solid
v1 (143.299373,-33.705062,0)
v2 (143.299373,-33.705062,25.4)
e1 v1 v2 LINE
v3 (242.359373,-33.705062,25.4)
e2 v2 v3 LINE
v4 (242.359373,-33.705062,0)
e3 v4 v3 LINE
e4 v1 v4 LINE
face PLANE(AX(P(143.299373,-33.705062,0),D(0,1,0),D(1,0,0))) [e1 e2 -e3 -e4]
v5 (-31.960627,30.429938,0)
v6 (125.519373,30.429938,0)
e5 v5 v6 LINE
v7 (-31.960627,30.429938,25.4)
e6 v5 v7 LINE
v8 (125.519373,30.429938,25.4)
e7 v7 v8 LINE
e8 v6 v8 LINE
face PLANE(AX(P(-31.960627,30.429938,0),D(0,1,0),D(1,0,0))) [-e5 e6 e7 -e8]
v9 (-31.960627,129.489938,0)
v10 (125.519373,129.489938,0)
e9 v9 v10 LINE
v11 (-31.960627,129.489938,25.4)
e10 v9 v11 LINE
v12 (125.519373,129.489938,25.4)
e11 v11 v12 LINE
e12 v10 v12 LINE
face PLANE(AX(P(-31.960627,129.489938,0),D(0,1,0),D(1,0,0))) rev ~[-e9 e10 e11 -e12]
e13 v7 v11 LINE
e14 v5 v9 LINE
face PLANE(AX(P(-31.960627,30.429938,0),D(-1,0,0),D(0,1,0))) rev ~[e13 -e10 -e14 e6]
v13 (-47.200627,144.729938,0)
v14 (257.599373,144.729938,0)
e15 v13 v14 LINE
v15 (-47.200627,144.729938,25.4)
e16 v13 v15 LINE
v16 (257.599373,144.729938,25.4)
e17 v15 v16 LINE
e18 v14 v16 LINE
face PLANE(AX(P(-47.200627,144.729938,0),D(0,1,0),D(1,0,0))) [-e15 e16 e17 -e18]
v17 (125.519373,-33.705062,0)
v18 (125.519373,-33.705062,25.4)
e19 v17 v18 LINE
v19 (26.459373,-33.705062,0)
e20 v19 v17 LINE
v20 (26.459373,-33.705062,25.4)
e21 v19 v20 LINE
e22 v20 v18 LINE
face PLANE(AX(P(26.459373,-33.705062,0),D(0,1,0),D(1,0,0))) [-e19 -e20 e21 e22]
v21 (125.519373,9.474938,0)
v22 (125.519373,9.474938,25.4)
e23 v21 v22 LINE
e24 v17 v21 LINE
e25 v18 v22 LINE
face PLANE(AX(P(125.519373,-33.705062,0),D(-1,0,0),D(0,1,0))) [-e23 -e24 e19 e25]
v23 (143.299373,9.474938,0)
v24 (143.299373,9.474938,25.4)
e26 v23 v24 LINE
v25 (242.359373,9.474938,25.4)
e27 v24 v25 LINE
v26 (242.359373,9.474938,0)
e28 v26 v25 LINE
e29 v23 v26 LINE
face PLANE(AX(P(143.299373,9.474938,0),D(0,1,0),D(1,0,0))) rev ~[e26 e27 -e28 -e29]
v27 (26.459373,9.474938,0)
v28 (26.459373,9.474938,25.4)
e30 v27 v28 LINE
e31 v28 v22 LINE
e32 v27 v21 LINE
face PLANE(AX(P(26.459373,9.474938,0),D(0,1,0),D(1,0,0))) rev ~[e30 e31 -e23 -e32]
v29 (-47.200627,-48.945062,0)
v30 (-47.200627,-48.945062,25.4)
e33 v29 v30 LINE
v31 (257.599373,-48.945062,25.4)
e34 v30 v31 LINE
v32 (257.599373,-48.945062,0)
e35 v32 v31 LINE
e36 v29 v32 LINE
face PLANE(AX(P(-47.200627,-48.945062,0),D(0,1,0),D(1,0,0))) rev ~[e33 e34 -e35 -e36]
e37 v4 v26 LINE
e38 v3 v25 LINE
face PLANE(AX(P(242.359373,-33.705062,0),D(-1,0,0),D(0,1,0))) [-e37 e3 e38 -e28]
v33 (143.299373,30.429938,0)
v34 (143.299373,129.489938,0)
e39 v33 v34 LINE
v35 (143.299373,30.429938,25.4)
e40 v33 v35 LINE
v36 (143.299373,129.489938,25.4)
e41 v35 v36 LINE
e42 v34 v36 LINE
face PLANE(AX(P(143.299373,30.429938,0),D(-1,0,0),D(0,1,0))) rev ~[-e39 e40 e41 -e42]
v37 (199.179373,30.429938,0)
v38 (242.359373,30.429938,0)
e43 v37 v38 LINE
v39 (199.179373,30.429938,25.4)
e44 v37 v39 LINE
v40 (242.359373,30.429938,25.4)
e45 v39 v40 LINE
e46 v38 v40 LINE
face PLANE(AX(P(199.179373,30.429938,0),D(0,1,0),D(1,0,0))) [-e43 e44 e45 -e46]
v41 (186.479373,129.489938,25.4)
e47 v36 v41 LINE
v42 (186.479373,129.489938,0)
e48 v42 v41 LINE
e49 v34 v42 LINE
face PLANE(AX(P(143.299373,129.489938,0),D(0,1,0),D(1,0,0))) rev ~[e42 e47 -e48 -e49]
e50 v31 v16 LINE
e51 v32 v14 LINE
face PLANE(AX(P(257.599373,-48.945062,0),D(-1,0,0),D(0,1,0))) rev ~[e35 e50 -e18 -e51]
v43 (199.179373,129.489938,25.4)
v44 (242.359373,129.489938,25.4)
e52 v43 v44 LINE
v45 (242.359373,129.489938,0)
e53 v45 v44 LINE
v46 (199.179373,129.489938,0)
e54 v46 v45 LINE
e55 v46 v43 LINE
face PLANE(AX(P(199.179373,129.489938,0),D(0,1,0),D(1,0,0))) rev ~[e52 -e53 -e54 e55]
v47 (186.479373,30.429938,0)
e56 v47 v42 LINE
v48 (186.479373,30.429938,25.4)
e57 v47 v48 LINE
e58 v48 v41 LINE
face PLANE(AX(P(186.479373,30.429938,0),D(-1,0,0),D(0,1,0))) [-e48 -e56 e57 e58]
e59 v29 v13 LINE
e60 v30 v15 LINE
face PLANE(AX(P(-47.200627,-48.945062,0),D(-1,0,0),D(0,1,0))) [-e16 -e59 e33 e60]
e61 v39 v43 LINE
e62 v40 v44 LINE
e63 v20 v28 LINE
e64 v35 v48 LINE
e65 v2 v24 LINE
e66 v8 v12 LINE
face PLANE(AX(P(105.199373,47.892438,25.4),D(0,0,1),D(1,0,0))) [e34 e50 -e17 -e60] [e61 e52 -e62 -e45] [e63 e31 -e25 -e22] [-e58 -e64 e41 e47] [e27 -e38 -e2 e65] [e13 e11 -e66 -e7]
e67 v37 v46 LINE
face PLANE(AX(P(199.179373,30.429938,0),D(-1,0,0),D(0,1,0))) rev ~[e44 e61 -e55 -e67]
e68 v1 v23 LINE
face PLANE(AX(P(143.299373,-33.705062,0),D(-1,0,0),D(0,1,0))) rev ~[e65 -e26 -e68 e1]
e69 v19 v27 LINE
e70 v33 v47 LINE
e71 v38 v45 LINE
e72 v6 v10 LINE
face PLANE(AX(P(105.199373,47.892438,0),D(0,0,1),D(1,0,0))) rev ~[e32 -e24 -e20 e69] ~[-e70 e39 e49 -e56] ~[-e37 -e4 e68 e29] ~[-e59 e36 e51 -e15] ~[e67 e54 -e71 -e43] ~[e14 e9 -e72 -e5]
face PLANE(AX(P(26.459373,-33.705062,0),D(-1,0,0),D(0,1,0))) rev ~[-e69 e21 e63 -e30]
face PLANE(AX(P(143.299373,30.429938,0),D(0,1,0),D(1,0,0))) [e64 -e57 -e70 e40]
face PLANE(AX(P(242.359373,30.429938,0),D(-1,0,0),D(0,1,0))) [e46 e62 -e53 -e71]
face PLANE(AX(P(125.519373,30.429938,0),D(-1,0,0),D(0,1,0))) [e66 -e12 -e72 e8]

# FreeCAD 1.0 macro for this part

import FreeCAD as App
import Part
import Sketcher
from FreeCAD import Vector
Q = App.Units.Quantity


def add_polygon(sketch, points):
    """Adds a closed chain of lines whose ends are joined by coincident constraints."""
    first, n = sketch.GeometryCount, len(points)
    for a, b in zip(points, points[1:] + points[:1]):
        sketch.addGeometry(Part.LineSegment(App.Vector(*a, 0), App.Vector(*b, 0)), False)
    for i in range(n):
        sketch.addConstraint(Sketcher.Constraint("Coincident", first + i, 2, first + (i + 1) % n, 1))

doc = App.newDocument("Part")
params = doc.addObject("Spreadsheet::Sheet", "Params")
for row, (alias, value) in enumerate([
    ("sketch1_width", "12 in"),
    ("sketch1_width2", "3.9 in"),
    ("sketch1_width3", "6.2 in"),
    ("sketch1_width4", "1.7 in"),
    ("sketch1_height", "7.625 in"),
    ("pad1_length", "1 in"),
], start=1):
    params.set(f"A{row}", alias)
    params.set(f"B{row}", "=" + value)
    params.setAlias(f"B{row}", alias)

body = doc.addObject("PartDesign::Body", "Body")

# Sketch on XY plane
sketch1 = body.newObject("Sketcher::SketchObject", "Sketch")
sketch1.AttachmentSupport = (doc.getObject("XY_Plane"), [""])
sketch1.MapMode = "FlatFace"
add_polygon(sketch1, [(-47, 145), (-47, -49), (258, -49), (258, 145)])  # lines 0-3
add_polygon(sketch1, [(126, -34), (26, -34), (26, 9), (126, 9)])  # lines 4-7
add_polygon(sketch1, [(242, -34), (143, -34), (143, 9), (242, 9)])  # lines 8-11
add_polygon(sketch1, [(126, 30), (-32, 30), (-32, 129), (126, 129)])  # lines 12-15
add_polygon(sketch1, [(186, 30), (143, 30), (143, 129), (186, 129)])  # lines 16-19
add_polygon(sketch1, [(242, 30), (199, 30), (199, 129), (242, 129)])  # lines 20-23
sketch1.addConstraint(Sketcher.Constraint("Vertical", 0))
sketch1.addConstraint(Sketcher.Constraint("Horizontal", 1))
sketch1.addConstraint(Sketcher.Constraint("Vertical", 2))
sketch1.addConstraint(Sketcher.Constraint("Horizontal", 3))
sketch1.addConstraint(Sketcher.Constraint("Horizontal", 4))
sketch1.addConstraint(Sketcher.Constraint("Vertical", 5))
sketch1.addConstraint(Sketcher.Constraint("Horizontal", 6))
sketch1.addConstraint(Sketcher.Constraint("Vertical", 7))
sketch1.addConstraint(Sketcher.Constraint("Horizontal", 8))
sketch1.addConstraint(Sketcher.Constraint("Vertical", 9))
sketch1.addConstraint(Sketcher.Constraint("Horizontal", 10))
sketch1.addConstraint(Sketcher.Constraint("Vertical", 11))
sketch1.addConstraint(Sketcher.Constraint("Horizontal", 12))
sketch1.addConstraint(Sketcher.Constraint("Vertical", 13))
sketch1.addConstraint(Sketcher.Constraint("Horizontal", 14))
sketch1.addConstraint(Sketcher.Constraint("Vertical", 15))
sketch1.addConstraint(Sketcher.Constraint("Horizontal", 16))
sketch1.addConstraint(Sketcher.Constraint("Vertical", 17))
sketch1.addConstraint(Sketcher.Constraint("Horizontal", 18))
sketch1.addConstraint(Sketcher.Constraint("Vertical", 19))
sketch1.addConstraint(Sketcher.Constraint("Horizontal", 20))
sketch1.addConstraint(Sketcher.Constraint("Vertical", 21))
sketch1.addConstraint(Sketcher.Constraint("Horizontal", 22))
sketch1.addConstraint(Sketcher.Constraint("Vertical", 23))
sketch1.addConstraint(Sketcher.Constraint("Horizontal", 7, 2, 8, 2))
sketch1.addConstraint(Sketcher.Constraint("Horizontal", 6, 2, 9, 2))
sketch1.addConstraint(Sketcher.Constraint("Horizontal", 15, 2, 16, 2))
sketch1.addConstraint(Sketcher.Constraint("Horizontal", 14, 2, 17, 2))
sketch1.addConstraint(Sketcher.Constraint("Horizontal", 19, 2, 20, 2))
sketch1.addConstraint(Sketcher.Constraint("Horizontal", 18, 2, 21, 2))
sketch1.addConstraint(Sketcher.Constraint("Vertical", 7, 2, 14, 2))
sketch1.addConstraint(Sketcher.Constraint("Vertical", 9, 2, 16, 2))
sketch1.addConstraint(Sketcher.Constraint("Vertical", 11, 2, 22, 2))
sketch1.addConstraint(Sketcher.Constraint("Equal", 6, 8))
sketch1.addConstraint(Sketcher.Constraint("Equal", 18, 20))
sketch1.addConstraint(Sketcher.Constraint("Equal", 22, 5))
sketch1.addConstraint(Sketcher.Constraint("Equal", 10, 13))
sketch1.addConstraint(Sketcher.Constraint("DistanceX", 1, 1, 1, 2, Q("12 in")))
sketch1.addConstraint(Sketcher.Constraint("DistanceX", 4, 2, 4, 1, Q("3.9 in")))
sketch1.addConstraint(Sketcher.Constraint("DistanceX", 12, 2, 12, 1, Q("6.2 in")))
sketch1.addConstraint(Sketcher.Constraint("DistanceX", 16, 2, 16, 1, Q("1.7 in")))
sketch1.addConstraint(Sketcher.Constraint("DistanceX", 0, 2, 4, 2, Q("2.9 in")))
sketch1.addConstraint(Sketcher.Constraint("DistanceY", 0, 2, 4, 2, Q("0.6 in")))
sketch1.addConstraint(Sketcher.Constraint("DistanceX", 7, 2, 8, 2, Q("0.7 in")))
sketch1.addConstraint(Sketcher.Constraint("DistanceY", 12, 2, 3, 2, Q("4.5 in")))
sketch1.addConstraint(Sketcher.Constraint("DistanceY", 0, 2, 0, 1, Q("7.625 in")))
sketch1.addConstraint(Sketcher.Constraint("DistanceY", -1, 1, 2, 2, 144.729938))
sketch1.addConstraint(Sketcher.Constraint("DistanceX", 0, 2, -1, 1, 47.200627))
sketch1.setExpression("Constraints[61]", "Params.sketch1_width")
sketch1.setExpression("Constraints[62]", "Params.sketch1_width2")
sketch1.setExpression("Constraints[63]", "Params.sketch1_width3")
sketch1.setExpression("Constraints[64]", "Params.sketch1_width4")
sketch1.setExpression("Constraints[69]", "Params.sketch1_height")
pad1 = body.newObject("PartDesign::Pad", "Pad")
pad1.Profile = sketch1
pad1.setExpression("Length", "Params.pad1_length")

doc.recompute()
